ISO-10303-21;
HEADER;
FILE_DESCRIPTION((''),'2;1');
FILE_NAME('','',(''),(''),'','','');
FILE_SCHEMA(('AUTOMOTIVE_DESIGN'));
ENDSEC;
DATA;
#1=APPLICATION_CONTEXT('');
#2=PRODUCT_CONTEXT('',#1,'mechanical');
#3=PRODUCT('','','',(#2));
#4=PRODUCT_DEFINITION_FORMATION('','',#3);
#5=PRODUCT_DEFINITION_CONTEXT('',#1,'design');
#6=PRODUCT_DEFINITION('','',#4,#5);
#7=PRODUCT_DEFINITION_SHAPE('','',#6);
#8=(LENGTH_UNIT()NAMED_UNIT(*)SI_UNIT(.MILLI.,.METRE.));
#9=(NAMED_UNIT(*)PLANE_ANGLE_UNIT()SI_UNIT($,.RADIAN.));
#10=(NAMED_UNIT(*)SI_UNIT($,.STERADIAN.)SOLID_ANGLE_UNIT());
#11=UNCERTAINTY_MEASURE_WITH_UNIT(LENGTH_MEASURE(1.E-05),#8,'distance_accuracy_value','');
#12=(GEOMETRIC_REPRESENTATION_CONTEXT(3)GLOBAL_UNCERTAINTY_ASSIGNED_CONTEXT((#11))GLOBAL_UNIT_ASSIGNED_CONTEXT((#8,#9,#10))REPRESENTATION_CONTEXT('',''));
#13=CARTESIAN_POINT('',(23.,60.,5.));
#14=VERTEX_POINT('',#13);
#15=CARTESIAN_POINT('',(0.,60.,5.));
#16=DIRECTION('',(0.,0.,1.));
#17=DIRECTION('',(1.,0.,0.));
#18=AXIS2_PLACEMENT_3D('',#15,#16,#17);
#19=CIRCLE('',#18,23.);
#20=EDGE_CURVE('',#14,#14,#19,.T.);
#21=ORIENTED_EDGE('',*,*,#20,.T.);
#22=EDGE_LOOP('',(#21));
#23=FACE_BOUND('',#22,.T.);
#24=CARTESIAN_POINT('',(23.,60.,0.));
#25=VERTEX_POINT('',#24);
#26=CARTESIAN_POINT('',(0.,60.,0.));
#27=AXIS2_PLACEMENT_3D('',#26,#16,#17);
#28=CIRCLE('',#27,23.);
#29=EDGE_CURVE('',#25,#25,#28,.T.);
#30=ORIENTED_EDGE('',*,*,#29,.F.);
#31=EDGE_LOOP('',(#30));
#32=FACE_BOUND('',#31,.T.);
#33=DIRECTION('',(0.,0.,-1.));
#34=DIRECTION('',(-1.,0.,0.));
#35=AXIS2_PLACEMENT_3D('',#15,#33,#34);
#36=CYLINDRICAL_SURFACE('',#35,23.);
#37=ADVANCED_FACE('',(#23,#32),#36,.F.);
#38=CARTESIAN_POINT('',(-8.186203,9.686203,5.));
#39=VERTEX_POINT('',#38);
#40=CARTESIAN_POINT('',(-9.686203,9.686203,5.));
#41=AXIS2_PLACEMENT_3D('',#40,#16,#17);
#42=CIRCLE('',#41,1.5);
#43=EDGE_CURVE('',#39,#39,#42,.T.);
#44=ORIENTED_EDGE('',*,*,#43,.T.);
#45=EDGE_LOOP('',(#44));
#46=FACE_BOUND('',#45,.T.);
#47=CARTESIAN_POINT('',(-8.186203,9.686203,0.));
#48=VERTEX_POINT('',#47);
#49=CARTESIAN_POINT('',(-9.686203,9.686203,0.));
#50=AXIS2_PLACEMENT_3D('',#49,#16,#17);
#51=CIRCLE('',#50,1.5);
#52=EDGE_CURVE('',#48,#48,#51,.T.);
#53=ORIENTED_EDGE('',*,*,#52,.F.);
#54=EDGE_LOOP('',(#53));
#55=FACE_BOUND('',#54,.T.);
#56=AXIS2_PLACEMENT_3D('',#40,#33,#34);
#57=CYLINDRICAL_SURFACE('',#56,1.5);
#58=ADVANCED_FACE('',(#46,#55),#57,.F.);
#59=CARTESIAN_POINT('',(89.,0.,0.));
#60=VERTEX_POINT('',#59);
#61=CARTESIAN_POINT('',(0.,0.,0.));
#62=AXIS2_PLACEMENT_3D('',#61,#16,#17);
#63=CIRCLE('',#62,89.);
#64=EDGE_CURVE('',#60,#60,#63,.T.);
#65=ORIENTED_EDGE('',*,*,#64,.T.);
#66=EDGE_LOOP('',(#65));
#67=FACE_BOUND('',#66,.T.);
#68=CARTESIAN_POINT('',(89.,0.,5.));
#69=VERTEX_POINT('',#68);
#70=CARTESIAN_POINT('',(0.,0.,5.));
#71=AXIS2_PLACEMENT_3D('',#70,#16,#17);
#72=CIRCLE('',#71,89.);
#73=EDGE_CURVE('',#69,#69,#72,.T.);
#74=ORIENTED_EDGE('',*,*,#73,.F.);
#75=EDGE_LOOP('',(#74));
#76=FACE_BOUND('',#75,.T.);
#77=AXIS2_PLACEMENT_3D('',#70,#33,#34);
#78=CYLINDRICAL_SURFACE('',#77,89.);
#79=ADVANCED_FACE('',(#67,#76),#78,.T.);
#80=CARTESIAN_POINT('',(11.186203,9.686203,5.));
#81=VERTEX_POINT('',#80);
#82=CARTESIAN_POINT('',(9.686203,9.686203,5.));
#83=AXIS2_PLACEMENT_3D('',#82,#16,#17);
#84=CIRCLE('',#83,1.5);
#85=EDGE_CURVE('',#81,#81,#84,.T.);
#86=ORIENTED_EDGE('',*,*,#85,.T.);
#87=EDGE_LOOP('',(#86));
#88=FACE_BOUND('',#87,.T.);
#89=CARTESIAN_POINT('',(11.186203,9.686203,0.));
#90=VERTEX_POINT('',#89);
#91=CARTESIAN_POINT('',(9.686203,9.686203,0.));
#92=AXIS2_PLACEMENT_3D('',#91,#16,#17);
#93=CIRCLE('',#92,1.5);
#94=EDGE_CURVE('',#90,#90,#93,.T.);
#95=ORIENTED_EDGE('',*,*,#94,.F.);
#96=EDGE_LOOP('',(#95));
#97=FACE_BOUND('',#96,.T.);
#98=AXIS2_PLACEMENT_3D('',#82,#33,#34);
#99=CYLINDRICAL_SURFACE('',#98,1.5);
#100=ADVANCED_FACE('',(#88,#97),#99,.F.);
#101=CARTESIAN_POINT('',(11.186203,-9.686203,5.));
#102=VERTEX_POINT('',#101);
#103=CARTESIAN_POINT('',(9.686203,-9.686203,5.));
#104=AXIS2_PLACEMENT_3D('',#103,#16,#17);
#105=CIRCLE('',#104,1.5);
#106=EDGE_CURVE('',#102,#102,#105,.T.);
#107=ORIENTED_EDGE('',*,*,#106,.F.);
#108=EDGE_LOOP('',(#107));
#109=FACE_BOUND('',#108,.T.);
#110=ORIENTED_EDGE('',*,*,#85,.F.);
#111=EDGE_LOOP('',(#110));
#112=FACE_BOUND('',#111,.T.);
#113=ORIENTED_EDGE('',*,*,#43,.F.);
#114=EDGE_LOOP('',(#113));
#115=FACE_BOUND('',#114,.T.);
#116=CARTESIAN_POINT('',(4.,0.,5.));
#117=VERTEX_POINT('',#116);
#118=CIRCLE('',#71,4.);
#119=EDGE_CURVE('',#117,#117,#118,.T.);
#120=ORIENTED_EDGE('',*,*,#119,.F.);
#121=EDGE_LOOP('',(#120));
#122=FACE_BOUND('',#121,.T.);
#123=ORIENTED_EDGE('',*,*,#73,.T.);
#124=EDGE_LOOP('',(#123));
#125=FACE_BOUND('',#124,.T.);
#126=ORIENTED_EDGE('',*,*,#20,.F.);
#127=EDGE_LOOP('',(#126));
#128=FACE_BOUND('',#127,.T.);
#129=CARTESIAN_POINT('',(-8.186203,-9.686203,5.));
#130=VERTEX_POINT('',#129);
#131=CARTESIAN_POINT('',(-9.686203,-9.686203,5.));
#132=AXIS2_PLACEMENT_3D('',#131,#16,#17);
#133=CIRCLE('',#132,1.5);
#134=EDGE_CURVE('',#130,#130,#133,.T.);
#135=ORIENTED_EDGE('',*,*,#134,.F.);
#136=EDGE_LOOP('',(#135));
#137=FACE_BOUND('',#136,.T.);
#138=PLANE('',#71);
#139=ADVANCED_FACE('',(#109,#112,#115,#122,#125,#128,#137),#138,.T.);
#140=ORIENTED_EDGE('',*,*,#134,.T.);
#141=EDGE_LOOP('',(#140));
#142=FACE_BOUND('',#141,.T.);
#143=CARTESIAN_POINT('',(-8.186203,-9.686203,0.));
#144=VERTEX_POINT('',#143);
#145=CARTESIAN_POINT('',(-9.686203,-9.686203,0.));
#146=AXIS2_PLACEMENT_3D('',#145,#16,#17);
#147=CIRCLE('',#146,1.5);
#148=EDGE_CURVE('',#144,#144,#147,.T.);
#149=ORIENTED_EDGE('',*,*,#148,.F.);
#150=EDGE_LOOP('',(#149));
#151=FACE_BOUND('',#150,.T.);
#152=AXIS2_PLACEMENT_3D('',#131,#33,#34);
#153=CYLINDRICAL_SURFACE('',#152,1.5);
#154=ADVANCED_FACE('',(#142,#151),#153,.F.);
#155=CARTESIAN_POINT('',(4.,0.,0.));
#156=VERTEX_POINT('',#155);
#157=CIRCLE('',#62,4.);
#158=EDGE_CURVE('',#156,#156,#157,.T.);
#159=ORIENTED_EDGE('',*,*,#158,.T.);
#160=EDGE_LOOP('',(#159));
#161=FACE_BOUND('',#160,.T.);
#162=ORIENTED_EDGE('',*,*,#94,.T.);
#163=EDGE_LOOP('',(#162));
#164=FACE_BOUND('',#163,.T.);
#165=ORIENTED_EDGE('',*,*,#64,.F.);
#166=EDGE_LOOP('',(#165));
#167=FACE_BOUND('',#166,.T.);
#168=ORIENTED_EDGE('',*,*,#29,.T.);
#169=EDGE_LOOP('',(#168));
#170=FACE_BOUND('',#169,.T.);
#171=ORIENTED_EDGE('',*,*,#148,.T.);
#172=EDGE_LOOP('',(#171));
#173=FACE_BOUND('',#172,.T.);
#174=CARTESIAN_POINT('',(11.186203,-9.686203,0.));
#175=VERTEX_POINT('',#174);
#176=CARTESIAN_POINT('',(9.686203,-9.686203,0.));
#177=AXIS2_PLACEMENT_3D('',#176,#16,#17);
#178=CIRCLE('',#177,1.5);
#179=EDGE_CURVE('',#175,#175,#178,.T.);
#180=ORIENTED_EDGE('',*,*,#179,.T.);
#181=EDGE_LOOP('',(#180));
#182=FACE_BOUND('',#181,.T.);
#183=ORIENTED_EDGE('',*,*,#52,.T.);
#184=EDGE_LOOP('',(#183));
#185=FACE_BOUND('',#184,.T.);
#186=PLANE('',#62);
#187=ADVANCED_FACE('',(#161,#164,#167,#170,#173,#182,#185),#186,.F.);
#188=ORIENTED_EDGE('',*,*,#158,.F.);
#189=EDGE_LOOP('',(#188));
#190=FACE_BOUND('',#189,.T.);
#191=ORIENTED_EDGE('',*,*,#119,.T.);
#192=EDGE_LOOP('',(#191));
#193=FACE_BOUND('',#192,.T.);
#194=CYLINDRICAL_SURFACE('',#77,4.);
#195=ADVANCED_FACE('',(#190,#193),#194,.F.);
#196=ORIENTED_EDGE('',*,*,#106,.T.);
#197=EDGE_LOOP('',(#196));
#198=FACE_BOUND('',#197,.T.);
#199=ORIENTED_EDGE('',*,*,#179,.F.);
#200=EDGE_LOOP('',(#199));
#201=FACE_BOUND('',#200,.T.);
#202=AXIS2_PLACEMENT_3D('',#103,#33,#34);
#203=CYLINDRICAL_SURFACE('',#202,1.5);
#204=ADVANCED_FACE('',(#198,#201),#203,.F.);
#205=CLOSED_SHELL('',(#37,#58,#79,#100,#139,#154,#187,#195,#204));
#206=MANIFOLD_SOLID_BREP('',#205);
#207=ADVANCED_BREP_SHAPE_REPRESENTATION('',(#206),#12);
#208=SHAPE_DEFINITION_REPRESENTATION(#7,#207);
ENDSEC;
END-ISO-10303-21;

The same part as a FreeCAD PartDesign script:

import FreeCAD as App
import Part
import Sketcher
Q = App.Units.Quantity

doc = App.newDocument("Part")
body = doc.addObject("PartDesign::Body", "Body")

sketch1 = body.newObject("Sketcher::SketchObject", "Sketch")
sketch1.AttachmentSupport = (doc.getObject("XY_Plane"), [""])
sketch1.MapMode = "FlatFace"
sketch1.addGeometry([
    Part.Circle(App.Vector(0, 0, 0), App.Vector(0, 0, 1), 89),
    Part.Circle(App.Vector(-9.7, -9.7, 0), App.Vector(0, 0, 1), 1.5),
    Part.Circle(App.Vector(-9.7, 9.7, 0), App.Vector(0, 0, 1), 1.5),
    Part.Circle(App.Vector(0, 0, 0), App.Vector(0, 0, 1), 4),
    Part.Circle(App.Vector(9.7, -9.7, 0), App.Vector(0, 0, 1), 1.5),
    Part.Circle(App.Vector(9.7, 9.7, 0), App.Vector(0, 0, 1), 1.5),
    Part.Circle(App.Vector(0, 60, 0), App.Vector(0, 0, 1), 23),
], False)
sketch1.addConstraint([
    Sketcher.Constraint("Coincident", 0, 3, -1, 1),
    Sketcher.Constraint("Coincident", 3, 3, -1, 1),
    Sketcher.Constraint("Equal", 1, 2),
    Sketcher.Constraint("Equal", 2, 4),
    Sketcher.Constraint("Equal", 4, 5),
    Sketcher.Constraint("Symmetric", 2, 3, 4, 3, -1, 1),
    Sketcher.Constraint("Symmetric", 1, 3, 5, 3, -1, 1),
    Sketcher.Constraint("Symmetric", 1, 3, 4, 3, -2),
    Sketcher.Constraint("PointOnObject", 6, 3, -2),
    Sketcher.Constraint("Diameter", 0, Q("178 mm")),
    Sketcher.Constraint("Diameter", 1, Q("3 mm")),
    Sketcher.Constraint("Diameter", 3, Q("8 mm")),
    Sketcher.Constraint("Diameter", 6, Q("46 mm")),
    Sketcher.Constraint("DistanceY", -1, 1, 6, 3, Q("60 mm")),
    Sketcher.Constraint("DistanceX", 1, 3, -1, 1, Q("9.686203 mm")),
    Sketcher.Constraint("DistanceY", 1, 3, -1, 1, Q("9.686203 mm")),
])
pad1 = body.newObject("PartDesign::Pad", "Pad")
pad1.Profile = sketch1
pad1.Length = 5

doc.recompute()
